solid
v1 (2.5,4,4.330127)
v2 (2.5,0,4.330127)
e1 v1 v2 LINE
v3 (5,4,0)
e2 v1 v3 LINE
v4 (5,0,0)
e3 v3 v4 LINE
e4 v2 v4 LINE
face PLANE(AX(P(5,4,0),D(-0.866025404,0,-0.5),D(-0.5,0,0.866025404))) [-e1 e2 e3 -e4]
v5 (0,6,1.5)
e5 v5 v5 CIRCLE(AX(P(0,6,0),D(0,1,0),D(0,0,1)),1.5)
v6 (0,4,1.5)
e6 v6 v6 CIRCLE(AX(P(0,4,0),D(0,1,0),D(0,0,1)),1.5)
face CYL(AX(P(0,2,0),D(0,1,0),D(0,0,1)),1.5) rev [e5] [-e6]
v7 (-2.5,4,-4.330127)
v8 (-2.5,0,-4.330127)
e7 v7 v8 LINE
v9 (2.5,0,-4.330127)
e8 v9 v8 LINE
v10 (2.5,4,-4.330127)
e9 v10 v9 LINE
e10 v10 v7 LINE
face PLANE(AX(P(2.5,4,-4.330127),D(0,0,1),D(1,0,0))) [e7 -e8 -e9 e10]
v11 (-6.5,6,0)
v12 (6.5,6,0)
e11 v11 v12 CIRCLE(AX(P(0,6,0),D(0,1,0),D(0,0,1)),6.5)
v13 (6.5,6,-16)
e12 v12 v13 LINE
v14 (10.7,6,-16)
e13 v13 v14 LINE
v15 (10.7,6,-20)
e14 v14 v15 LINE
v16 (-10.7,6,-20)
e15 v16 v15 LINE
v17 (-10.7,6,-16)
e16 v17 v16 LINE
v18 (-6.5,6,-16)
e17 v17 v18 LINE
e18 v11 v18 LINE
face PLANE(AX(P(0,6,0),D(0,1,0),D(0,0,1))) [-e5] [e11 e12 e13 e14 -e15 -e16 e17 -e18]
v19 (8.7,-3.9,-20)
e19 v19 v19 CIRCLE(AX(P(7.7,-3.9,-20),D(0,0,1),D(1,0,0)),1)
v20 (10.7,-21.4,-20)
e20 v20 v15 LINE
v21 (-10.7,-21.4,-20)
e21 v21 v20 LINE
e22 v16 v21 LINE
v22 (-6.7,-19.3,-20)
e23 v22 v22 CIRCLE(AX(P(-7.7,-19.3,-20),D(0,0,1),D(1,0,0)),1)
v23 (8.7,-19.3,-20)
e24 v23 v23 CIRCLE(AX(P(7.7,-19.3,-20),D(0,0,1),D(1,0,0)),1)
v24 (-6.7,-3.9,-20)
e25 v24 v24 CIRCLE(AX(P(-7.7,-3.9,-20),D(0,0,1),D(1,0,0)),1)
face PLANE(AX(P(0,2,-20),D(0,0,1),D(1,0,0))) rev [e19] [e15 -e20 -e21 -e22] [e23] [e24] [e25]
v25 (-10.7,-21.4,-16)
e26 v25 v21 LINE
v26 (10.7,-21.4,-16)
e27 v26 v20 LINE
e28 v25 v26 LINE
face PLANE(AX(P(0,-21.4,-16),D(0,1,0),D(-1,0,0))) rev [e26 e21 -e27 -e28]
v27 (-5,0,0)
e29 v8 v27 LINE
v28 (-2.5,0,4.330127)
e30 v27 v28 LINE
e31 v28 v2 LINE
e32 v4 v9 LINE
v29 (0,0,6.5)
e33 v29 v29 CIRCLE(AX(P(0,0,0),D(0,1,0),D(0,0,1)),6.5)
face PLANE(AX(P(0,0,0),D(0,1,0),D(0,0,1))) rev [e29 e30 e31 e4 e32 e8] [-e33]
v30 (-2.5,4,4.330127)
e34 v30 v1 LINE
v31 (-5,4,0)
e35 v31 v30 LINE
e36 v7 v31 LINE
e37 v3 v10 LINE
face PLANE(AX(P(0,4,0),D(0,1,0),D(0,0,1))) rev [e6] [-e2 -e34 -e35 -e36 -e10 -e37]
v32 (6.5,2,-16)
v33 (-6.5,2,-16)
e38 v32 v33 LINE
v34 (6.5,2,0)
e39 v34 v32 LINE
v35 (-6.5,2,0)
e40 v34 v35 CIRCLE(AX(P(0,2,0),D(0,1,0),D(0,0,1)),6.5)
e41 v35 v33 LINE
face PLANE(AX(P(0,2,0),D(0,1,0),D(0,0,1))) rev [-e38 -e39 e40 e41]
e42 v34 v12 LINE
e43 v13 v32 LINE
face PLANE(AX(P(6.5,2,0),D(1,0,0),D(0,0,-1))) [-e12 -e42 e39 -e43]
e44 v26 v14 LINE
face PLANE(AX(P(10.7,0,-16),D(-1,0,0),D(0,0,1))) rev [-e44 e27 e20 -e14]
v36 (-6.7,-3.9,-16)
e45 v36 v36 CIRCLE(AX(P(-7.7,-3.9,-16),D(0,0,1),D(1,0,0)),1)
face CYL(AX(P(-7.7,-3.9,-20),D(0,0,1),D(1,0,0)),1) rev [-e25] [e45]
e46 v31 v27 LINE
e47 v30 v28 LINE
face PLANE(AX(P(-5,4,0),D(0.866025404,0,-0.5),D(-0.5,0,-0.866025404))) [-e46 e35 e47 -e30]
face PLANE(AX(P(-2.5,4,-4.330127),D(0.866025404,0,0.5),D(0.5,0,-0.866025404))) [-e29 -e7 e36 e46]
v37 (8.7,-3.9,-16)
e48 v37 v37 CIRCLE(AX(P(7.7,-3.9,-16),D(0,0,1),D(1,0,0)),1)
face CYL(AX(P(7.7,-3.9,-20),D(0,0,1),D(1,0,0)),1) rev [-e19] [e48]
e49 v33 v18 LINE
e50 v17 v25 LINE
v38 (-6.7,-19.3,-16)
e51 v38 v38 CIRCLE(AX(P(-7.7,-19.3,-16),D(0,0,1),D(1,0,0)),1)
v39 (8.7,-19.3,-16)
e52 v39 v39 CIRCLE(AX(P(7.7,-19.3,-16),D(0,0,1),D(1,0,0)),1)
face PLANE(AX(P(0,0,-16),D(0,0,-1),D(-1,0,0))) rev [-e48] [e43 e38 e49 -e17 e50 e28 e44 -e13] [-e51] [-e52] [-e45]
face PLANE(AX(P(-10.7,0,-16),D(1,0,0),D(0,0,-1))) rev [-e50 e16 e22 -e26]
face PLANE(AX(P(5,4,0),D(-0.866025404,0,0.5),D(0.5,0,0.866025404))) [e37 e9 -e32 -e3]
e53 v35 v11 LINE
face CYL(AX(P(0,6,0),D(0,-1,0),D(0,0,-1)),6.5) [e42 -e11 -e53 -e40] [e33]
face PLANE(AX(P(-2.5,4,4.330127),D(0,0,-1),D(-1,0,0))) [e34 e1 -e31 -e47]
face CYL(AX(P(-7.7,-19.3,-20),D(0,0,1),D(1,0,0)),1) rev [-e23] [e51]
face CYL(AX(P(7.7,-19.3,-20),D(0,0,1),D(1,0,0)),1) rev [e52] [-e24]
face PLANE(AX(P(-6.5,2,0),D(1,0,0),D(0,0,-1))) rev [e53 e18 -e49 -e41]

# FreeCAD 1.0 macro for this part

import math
import FreeCAD as App
import Part
import Sketcher

V = App.Vector
Q = App.Units.Quantity

doc = App.newDocument("Part")
body = doc.addObject("PartDesign::Body", "Body")

# Sketch on XZ plane
sketch1 = body.newObject("Sketcher::SketchObject", "Sketch")
sketch1.AttachmentSupport = (doc.getObject("XZ_Plane"), [""])
sketch1.MapMode = "FlatFace"
sketch1.addGeometry(Part.Circle(V(0, 0, 0), V(0, 0, 1), 6), False)
sketch1.addConstraint([
    Sketcher.Constraint("Coincident", 0, 3, -1, 1),
    Sketcher.Constraint("Diameter", 0, 13.0),
])
pad1 = body.newObject("PartDesign::Pad", "Pad")
pad1.Profile = sketch1
pad1.Length = 6
pad1.Reversed = True

# Sketch on XZ plane
sketch2 = body.newObject("Sketcher::SketchObject", "Sketch001")
sketch2.AttachmentSupport = (doc.getObject("XZ_Plane"), [""])
sketch2.MapMode = "FlatFace"
sketch2.addGeometry([
    Part.LineSegment(V(5, 0, 0), V(2, -4, 0)),  # 0
    Part.LineSegment(V(2, -4, 0), V(-2, -4, 0)),  # 1
    Part.LineSegment(V(-2, -4, 0), V(-5, 0, 0)),  # 2
    Part.LineSegment(V(-5, 0, 0), V(-2, 4, 0)),  # 3
    Part.LineSegment(V(-2, 4, 0), V(2, 4, 0)),  # 4
    Part.LineSegment(V(2, 4, 0), V(5, 0, 0)),  # 5
], False)
sketch2.addConstraint([
    Sketcher.Constraint("Coincident", 0, 2, 1, 1),
    Sketcher.Constraint("Coincident", 1, 2, 2, 1),
    Sketcher.Constraint("Coincident", 2, 2, 3, 1),
    Sketcher.Constraint("Coincident", 3, 2, 4, 1),
    Sketcher.Constraint("Coincident", 4, 2, 5, 1),
    Sketcher.Constraint("Coincident", 5, 2, 0, 1),
    Sketcher.Constraint("Horizontal", 1),
    Sketcher.Constraint("Horizontal", 4),
    Sketcher.Constraint("Symmetric", 0, 2, 3, 2, -1, 1),
    Sketcher.Constraint("Symmetric", 2, 2, 5, 2, -1, 1),
    Sketcher.Constraint("PointOnObject", 2, 2, -1),
    Sketcher.Constraint("Parallel", 2, 5),
    Sketcher.Constraint("Vertical", 1, 2, 3, 2),
    Sketcher.Constraint("DistanceX", 1, 2, 1, 1, 5.0),
    Sketcher.Constraint("Angle", 0, Q("-120 deg")),
    Sketcher.Constraint("Distance", 0, 5.0),
])
pocket1 = body.newObject("PartDesign::Pocket", "Pocket")
pocket1.Profile = sketch2
pocket1.Length = 4

# Sketch on XZ plane
sketch3 = body.newObject("Sketcher::SketchObject", "Sketch002")
sketch3.AttachmentSupport = (doc.getObject("XZ_Plane"), [""])
sketch3.MapMode = "FlatFace"
sketch3.AttachmentOffset = App.Placement(V(0, 0, -6), App.Rotation())
sketch3.addGeometry(Part.Circle(V(0, 0, 0), V(0, 0, 1), 1.5), False)
sketch3.addConstraint([
    Sketcher.Constraint("Coincident", 0, 3, -1, 1),
    Sketcher.Constraint("Diameter", 0, 3.0),
])
pocket2 = body.newObject("PartDesign::Pocket", "Pocket001")
pocket2.Profile = sketch3
pocket2.Length = 4
pocket2.Reversed = True

# Sketch on XZ plane
sketch4 = body.newObject("Sketcher::SketchObject", "Sketch003")
sketch4.AttachmentSupport = (doc.getObject("XZ_Plane"), [""])
sketch4.MapMode = "FlatFace"
sketch4.AttachmentOffset = App.Placement(V(0, 0, -2), App.Rotation())
sketch4.addGeometry([
    Part.LineSegment(V(6, 0, 0), V(6, -20, 0)),
    Part.LineSegment(V(6, -20, 0), V(-6, -20, 0)),
    Part.LineSegment(V(-6, -20, 0), V(-6, 0, 0)),
    Part.ArcOfCircle(Part.Circle(V(0, 0, 0), V(0, 0, 1), 6), math.radians(180), math.radians(360)),
], False)
sketch4.addConstraint([
    Sketcher.Constraint("Coincident", 0, 2, 1, 1),
    Sketcher.Constraint("Coincident", 1, 2, 2, 1),
    Sketcher.Constraint("Tangent", 2, 2, 3, 1),
    Sketcher.Constraint("Tangent", 3, 2, 0, 1),
    Sketcher.Constraint("Vertical", 0),
    Sketcher.Constraint("Horizontal", 1),
    Sketcher.Constraint("Vertical", 2),
    Sketcher.Constraint("Coincident", 3, 3, -1, 1),
    Sketcher.Constraint("Radius", 3, 6.5),
    Sketcher.Constraint("DistanceY", 0, 2, 0, 1, 20.0),
])
pad2 = body.newObject("PartDesign::Pad", "Pad001")
pad2.Profile = sketch4
pad2.Length = 4
pad2.Reversed = True

# Sketch on XY plane
sketch5 = body.newObject("Sketcher::SketchObject", "Sketch004")
sketch5.AttachmentSupport = (doc.getObject("XY_Plane"), [""])
sketch5.MapMode = "FlatFace"
sketch5.AttachmentOffset = App.Placement(V(0, 0, -20), App.Rotation())
sketch5.addGeometry([
    Part.LineSegment(V(-11, 6, 0), V(11, 6, 0)),
    Part.LineSegment(V(11, 6, 0), V(11, -21, 0)),
    Part.LineSegment(V(11, -21, 0), V(-11, -21, 0)),
    Part.LineSegment(V(-11, -21, 0), V(-11, 6, 0)),
], False)
sketch5.addConstraint([
    Sketcher.Constraint("Coincident", 0, 2, 1, 1),
    Sketcher.Constraint("Coincident", 1, 2, 2, 1),
    Sketcher.Constraint("Coincident", 2, 2, 3, 1),
    Sketcher.Constraint("Coincident", 3, 2, 0, 1),
    Sketcher.Constraint("Horizontal", 0),
    Sketcher.Constraint("Vertical", 1),
    Sketcher.Constraint("Horizontal", 2),
    Sketcher.Constraint("Vertical", 3),
    Sketcher.Constraint("DistanceX", 0, 1, 0, 2, 21.4),
    Sketcher.Constraint("DistanceY", 1, 2, 1, 1, 27.4),
    Sketcher.Constraint("DistanceY", -1, 1, 0, 2, 6.0),
    Sketcher.Constraint("DistanceX", -1, 1, 0, 2, 10.7),
])
pad3 = body.newObject("PartDesign::Pad", "Pad002")
pad3.Profile = sketch5
pad3.Length = 4

# Sketch on XY plane
sketch6 = body.newObject("Sketcher::SketchObject", "Sketch005")
sketch6.AttachmentSupport = (doc.getObject("XY_Plane"), [""])
sketch6.MapMode = "FlatFace"
sketch6.AttachmentOffset = App.Placement(V(0, 0, -16), App.Rotation())
sketch6.addGeometry([
    Part.Circle(V(-7.7, -19.3, 0), V(0, 0, 1), 1),
    Part.Circle(V(7.7, -19.3, 0), V(0, 0, 1), 1),
    Part.Circle(V(7.7, -3.9, 0), V(0, 0, 1), 1),
    Part.Circle(V(-7.7, -3.9, 0), V(0, 0, 1), 1),
], False)
sketch6.addConstraint([
    Sketcher.Constraint("Equal", 0, 1),
    Sketcher.Constraint("Equal", 1, 2),
    Sketcher.Constraint("Equal", 2, 3),
    Sketcher.Constraint("Symmetric", 0, 3, 1, 3, -2),
    Sketcher.Constraint("Symmetric", 2, 3, 3, 3, -2),
    Sketcher.Constraint("Vertical", 1, 3, 2, 3),
    Sketcher.Constraint("Diameter", 0, 2.0),
    Sketcher.Constraint("DistanceX", 0, 3, -1, 1, 7.7),
    Sketcher.Constraint("DistanceY", 0, 3, -1, 1, 19.3),
    Sketcher.Constraint("DistanceY", 2, 3, -1, 1, 3.9),
])
pocket3 = body.newObject("PartDesign::Pocket", "Pocket002")
pocket3.Profile = sketch6
pocket3.Length = 4

doc.recompute()
